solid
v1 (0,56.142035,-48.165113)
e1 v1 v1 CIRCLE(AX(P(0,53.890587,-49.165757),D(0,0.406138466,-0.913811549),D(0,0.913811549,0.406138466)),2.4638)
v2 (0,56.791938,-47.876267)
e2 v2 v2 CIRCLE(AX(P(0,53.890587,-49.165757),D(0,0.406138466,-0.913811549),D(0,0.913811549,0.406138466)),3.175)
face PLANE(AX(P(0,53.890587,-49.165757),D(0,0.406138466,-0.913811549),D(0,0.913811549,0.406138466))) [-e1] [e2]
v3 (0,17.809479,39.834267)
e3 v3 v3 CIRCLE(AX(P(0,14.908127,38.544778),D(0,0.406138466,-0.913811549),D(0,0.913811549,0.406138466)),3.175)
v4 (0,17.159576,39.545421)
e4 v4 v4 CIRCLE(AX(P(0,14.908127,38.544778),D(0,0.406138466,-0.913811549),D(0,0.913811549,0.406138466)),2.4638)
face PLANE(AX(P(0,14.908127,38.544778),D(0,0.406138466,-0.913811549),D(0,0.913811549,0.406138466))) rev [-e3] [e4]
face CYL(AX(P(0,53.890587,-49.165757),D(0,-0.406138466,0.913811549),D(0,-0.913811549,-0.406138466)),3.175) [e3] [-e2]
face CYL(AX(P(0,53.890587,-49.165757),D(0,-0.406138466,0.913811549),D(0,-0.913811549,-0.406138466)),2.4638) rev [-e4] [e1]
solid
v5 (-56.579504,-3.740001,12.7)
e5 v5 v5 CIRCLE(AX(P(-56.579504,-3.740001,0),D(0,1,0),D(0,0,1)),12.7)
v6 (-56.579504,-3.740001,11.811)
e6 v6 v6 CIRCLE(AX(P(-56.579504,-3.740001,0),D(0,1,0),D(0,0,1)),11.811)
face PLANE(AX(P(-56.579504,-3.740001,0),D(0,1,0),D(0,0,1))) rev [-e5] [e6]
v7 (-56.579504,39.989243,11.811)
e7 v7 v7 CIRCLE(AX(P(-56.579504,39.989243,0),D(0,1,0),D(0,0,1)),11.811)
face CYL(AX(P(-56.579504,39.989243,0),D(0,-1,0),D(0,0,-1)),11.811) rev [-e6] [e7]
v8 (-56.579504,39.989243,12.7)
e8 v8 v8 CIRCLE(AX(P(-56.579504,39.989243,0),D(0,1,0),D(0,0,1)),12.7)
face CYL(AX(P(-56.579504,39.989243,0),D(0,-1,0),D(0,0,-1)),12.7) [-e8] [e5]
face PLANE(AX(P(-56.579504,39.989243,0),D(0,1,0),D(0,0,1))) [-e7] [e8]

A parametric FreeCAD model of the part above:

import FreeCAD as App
import Part
import Sketcher

V = App.Vector
Q = App.Units.Quantity

doc = App.newDocument("Part")
body = doc.addObject("PartDesign::Body", "Body")

# Sketch on XZ plane
sketch1 = body.newObject("Sketcher::SketchObject", "Sketch")
sketch1.AttachmentSupport = (doc.getObject("XZ_Plane"), [""])
sketch1.MapMode = "FlatFace"
sketch1.AttachmentOffset = App.Placement(V(0, 0, 3.740001), App.Rotation())
sketch1.addGeometry(Part.Circle(V(-57, 0, 0), V(0, 0, 1), 13), False)
sketch1.addGeometry(Part.Circle(V(-57, 0, 0), V(0, 0, 1), 12), False)
sketch1.addConstraint(Sketcher.Constraint("Coincident", 1, 3, 0, 3))
sketch1.addConstraint(Sketcher.Constraint("PointOnObject", 0, 3, -1))
sketch1.addConstraint(Sketcher.Constraint("Diameter", 0, Q("1 in")))
sketch1.addConstraint(Sketcher.Constraint("Diameter", 1, Q("0.93 in")))
sketch1.addConstraint(Sketcher.Constraint("DistanceX", 0, 3, -1, 1, 56.579504))
pad1 = body.newObject("PartDesign::Pad", "Pad")
pad1.Profile = sketch1
pad1.Length = 43.729244
pad1.Reversed = True
body2 = doc.addObject("PartDesign::Body", "Body001")

# Sketch on an angled plane
sketch2 = body2.newObject("Sketcher::SketchObject", "Sketch001")
sketch2.Placement = App.Placement(V(0, 14.908127, 38.544778), App.Rotation(V(0, 0.913811549, 0.406138466), V(1.000000001, 0, 0), V(0, 0.406138466, -0.913811549), "ZXY"))
sketch2.addGeometry(Part.Circle(V(0, 0, 0), V(0, 0, 1), 3.2), False)
sketch2.addGeometry(Part.Circle(V(0, 0, 0), V(0, 0, 1), 2.5), False)
sketch2.addConstraint(Sketcher.Constraint("Coincident", 0, 3, -1, 1))
sketch2.addConstraint(Sketcher.Constraint("Coincident", 1, 3, -1, 1))
sketch2.addConstraint(Sketcher.Constraint("Diameter", 0, Q("0.25 in")))
sketch2.addConstraint(Sketcher.Constraint("Diameter", 1, Q("0.194 in")))
pad2 = body2.newObject("PartDesign::Pad", "Pad001")
pad2.Profile = sketch2
pad2.Length = 95.983175

doc.recompute()
